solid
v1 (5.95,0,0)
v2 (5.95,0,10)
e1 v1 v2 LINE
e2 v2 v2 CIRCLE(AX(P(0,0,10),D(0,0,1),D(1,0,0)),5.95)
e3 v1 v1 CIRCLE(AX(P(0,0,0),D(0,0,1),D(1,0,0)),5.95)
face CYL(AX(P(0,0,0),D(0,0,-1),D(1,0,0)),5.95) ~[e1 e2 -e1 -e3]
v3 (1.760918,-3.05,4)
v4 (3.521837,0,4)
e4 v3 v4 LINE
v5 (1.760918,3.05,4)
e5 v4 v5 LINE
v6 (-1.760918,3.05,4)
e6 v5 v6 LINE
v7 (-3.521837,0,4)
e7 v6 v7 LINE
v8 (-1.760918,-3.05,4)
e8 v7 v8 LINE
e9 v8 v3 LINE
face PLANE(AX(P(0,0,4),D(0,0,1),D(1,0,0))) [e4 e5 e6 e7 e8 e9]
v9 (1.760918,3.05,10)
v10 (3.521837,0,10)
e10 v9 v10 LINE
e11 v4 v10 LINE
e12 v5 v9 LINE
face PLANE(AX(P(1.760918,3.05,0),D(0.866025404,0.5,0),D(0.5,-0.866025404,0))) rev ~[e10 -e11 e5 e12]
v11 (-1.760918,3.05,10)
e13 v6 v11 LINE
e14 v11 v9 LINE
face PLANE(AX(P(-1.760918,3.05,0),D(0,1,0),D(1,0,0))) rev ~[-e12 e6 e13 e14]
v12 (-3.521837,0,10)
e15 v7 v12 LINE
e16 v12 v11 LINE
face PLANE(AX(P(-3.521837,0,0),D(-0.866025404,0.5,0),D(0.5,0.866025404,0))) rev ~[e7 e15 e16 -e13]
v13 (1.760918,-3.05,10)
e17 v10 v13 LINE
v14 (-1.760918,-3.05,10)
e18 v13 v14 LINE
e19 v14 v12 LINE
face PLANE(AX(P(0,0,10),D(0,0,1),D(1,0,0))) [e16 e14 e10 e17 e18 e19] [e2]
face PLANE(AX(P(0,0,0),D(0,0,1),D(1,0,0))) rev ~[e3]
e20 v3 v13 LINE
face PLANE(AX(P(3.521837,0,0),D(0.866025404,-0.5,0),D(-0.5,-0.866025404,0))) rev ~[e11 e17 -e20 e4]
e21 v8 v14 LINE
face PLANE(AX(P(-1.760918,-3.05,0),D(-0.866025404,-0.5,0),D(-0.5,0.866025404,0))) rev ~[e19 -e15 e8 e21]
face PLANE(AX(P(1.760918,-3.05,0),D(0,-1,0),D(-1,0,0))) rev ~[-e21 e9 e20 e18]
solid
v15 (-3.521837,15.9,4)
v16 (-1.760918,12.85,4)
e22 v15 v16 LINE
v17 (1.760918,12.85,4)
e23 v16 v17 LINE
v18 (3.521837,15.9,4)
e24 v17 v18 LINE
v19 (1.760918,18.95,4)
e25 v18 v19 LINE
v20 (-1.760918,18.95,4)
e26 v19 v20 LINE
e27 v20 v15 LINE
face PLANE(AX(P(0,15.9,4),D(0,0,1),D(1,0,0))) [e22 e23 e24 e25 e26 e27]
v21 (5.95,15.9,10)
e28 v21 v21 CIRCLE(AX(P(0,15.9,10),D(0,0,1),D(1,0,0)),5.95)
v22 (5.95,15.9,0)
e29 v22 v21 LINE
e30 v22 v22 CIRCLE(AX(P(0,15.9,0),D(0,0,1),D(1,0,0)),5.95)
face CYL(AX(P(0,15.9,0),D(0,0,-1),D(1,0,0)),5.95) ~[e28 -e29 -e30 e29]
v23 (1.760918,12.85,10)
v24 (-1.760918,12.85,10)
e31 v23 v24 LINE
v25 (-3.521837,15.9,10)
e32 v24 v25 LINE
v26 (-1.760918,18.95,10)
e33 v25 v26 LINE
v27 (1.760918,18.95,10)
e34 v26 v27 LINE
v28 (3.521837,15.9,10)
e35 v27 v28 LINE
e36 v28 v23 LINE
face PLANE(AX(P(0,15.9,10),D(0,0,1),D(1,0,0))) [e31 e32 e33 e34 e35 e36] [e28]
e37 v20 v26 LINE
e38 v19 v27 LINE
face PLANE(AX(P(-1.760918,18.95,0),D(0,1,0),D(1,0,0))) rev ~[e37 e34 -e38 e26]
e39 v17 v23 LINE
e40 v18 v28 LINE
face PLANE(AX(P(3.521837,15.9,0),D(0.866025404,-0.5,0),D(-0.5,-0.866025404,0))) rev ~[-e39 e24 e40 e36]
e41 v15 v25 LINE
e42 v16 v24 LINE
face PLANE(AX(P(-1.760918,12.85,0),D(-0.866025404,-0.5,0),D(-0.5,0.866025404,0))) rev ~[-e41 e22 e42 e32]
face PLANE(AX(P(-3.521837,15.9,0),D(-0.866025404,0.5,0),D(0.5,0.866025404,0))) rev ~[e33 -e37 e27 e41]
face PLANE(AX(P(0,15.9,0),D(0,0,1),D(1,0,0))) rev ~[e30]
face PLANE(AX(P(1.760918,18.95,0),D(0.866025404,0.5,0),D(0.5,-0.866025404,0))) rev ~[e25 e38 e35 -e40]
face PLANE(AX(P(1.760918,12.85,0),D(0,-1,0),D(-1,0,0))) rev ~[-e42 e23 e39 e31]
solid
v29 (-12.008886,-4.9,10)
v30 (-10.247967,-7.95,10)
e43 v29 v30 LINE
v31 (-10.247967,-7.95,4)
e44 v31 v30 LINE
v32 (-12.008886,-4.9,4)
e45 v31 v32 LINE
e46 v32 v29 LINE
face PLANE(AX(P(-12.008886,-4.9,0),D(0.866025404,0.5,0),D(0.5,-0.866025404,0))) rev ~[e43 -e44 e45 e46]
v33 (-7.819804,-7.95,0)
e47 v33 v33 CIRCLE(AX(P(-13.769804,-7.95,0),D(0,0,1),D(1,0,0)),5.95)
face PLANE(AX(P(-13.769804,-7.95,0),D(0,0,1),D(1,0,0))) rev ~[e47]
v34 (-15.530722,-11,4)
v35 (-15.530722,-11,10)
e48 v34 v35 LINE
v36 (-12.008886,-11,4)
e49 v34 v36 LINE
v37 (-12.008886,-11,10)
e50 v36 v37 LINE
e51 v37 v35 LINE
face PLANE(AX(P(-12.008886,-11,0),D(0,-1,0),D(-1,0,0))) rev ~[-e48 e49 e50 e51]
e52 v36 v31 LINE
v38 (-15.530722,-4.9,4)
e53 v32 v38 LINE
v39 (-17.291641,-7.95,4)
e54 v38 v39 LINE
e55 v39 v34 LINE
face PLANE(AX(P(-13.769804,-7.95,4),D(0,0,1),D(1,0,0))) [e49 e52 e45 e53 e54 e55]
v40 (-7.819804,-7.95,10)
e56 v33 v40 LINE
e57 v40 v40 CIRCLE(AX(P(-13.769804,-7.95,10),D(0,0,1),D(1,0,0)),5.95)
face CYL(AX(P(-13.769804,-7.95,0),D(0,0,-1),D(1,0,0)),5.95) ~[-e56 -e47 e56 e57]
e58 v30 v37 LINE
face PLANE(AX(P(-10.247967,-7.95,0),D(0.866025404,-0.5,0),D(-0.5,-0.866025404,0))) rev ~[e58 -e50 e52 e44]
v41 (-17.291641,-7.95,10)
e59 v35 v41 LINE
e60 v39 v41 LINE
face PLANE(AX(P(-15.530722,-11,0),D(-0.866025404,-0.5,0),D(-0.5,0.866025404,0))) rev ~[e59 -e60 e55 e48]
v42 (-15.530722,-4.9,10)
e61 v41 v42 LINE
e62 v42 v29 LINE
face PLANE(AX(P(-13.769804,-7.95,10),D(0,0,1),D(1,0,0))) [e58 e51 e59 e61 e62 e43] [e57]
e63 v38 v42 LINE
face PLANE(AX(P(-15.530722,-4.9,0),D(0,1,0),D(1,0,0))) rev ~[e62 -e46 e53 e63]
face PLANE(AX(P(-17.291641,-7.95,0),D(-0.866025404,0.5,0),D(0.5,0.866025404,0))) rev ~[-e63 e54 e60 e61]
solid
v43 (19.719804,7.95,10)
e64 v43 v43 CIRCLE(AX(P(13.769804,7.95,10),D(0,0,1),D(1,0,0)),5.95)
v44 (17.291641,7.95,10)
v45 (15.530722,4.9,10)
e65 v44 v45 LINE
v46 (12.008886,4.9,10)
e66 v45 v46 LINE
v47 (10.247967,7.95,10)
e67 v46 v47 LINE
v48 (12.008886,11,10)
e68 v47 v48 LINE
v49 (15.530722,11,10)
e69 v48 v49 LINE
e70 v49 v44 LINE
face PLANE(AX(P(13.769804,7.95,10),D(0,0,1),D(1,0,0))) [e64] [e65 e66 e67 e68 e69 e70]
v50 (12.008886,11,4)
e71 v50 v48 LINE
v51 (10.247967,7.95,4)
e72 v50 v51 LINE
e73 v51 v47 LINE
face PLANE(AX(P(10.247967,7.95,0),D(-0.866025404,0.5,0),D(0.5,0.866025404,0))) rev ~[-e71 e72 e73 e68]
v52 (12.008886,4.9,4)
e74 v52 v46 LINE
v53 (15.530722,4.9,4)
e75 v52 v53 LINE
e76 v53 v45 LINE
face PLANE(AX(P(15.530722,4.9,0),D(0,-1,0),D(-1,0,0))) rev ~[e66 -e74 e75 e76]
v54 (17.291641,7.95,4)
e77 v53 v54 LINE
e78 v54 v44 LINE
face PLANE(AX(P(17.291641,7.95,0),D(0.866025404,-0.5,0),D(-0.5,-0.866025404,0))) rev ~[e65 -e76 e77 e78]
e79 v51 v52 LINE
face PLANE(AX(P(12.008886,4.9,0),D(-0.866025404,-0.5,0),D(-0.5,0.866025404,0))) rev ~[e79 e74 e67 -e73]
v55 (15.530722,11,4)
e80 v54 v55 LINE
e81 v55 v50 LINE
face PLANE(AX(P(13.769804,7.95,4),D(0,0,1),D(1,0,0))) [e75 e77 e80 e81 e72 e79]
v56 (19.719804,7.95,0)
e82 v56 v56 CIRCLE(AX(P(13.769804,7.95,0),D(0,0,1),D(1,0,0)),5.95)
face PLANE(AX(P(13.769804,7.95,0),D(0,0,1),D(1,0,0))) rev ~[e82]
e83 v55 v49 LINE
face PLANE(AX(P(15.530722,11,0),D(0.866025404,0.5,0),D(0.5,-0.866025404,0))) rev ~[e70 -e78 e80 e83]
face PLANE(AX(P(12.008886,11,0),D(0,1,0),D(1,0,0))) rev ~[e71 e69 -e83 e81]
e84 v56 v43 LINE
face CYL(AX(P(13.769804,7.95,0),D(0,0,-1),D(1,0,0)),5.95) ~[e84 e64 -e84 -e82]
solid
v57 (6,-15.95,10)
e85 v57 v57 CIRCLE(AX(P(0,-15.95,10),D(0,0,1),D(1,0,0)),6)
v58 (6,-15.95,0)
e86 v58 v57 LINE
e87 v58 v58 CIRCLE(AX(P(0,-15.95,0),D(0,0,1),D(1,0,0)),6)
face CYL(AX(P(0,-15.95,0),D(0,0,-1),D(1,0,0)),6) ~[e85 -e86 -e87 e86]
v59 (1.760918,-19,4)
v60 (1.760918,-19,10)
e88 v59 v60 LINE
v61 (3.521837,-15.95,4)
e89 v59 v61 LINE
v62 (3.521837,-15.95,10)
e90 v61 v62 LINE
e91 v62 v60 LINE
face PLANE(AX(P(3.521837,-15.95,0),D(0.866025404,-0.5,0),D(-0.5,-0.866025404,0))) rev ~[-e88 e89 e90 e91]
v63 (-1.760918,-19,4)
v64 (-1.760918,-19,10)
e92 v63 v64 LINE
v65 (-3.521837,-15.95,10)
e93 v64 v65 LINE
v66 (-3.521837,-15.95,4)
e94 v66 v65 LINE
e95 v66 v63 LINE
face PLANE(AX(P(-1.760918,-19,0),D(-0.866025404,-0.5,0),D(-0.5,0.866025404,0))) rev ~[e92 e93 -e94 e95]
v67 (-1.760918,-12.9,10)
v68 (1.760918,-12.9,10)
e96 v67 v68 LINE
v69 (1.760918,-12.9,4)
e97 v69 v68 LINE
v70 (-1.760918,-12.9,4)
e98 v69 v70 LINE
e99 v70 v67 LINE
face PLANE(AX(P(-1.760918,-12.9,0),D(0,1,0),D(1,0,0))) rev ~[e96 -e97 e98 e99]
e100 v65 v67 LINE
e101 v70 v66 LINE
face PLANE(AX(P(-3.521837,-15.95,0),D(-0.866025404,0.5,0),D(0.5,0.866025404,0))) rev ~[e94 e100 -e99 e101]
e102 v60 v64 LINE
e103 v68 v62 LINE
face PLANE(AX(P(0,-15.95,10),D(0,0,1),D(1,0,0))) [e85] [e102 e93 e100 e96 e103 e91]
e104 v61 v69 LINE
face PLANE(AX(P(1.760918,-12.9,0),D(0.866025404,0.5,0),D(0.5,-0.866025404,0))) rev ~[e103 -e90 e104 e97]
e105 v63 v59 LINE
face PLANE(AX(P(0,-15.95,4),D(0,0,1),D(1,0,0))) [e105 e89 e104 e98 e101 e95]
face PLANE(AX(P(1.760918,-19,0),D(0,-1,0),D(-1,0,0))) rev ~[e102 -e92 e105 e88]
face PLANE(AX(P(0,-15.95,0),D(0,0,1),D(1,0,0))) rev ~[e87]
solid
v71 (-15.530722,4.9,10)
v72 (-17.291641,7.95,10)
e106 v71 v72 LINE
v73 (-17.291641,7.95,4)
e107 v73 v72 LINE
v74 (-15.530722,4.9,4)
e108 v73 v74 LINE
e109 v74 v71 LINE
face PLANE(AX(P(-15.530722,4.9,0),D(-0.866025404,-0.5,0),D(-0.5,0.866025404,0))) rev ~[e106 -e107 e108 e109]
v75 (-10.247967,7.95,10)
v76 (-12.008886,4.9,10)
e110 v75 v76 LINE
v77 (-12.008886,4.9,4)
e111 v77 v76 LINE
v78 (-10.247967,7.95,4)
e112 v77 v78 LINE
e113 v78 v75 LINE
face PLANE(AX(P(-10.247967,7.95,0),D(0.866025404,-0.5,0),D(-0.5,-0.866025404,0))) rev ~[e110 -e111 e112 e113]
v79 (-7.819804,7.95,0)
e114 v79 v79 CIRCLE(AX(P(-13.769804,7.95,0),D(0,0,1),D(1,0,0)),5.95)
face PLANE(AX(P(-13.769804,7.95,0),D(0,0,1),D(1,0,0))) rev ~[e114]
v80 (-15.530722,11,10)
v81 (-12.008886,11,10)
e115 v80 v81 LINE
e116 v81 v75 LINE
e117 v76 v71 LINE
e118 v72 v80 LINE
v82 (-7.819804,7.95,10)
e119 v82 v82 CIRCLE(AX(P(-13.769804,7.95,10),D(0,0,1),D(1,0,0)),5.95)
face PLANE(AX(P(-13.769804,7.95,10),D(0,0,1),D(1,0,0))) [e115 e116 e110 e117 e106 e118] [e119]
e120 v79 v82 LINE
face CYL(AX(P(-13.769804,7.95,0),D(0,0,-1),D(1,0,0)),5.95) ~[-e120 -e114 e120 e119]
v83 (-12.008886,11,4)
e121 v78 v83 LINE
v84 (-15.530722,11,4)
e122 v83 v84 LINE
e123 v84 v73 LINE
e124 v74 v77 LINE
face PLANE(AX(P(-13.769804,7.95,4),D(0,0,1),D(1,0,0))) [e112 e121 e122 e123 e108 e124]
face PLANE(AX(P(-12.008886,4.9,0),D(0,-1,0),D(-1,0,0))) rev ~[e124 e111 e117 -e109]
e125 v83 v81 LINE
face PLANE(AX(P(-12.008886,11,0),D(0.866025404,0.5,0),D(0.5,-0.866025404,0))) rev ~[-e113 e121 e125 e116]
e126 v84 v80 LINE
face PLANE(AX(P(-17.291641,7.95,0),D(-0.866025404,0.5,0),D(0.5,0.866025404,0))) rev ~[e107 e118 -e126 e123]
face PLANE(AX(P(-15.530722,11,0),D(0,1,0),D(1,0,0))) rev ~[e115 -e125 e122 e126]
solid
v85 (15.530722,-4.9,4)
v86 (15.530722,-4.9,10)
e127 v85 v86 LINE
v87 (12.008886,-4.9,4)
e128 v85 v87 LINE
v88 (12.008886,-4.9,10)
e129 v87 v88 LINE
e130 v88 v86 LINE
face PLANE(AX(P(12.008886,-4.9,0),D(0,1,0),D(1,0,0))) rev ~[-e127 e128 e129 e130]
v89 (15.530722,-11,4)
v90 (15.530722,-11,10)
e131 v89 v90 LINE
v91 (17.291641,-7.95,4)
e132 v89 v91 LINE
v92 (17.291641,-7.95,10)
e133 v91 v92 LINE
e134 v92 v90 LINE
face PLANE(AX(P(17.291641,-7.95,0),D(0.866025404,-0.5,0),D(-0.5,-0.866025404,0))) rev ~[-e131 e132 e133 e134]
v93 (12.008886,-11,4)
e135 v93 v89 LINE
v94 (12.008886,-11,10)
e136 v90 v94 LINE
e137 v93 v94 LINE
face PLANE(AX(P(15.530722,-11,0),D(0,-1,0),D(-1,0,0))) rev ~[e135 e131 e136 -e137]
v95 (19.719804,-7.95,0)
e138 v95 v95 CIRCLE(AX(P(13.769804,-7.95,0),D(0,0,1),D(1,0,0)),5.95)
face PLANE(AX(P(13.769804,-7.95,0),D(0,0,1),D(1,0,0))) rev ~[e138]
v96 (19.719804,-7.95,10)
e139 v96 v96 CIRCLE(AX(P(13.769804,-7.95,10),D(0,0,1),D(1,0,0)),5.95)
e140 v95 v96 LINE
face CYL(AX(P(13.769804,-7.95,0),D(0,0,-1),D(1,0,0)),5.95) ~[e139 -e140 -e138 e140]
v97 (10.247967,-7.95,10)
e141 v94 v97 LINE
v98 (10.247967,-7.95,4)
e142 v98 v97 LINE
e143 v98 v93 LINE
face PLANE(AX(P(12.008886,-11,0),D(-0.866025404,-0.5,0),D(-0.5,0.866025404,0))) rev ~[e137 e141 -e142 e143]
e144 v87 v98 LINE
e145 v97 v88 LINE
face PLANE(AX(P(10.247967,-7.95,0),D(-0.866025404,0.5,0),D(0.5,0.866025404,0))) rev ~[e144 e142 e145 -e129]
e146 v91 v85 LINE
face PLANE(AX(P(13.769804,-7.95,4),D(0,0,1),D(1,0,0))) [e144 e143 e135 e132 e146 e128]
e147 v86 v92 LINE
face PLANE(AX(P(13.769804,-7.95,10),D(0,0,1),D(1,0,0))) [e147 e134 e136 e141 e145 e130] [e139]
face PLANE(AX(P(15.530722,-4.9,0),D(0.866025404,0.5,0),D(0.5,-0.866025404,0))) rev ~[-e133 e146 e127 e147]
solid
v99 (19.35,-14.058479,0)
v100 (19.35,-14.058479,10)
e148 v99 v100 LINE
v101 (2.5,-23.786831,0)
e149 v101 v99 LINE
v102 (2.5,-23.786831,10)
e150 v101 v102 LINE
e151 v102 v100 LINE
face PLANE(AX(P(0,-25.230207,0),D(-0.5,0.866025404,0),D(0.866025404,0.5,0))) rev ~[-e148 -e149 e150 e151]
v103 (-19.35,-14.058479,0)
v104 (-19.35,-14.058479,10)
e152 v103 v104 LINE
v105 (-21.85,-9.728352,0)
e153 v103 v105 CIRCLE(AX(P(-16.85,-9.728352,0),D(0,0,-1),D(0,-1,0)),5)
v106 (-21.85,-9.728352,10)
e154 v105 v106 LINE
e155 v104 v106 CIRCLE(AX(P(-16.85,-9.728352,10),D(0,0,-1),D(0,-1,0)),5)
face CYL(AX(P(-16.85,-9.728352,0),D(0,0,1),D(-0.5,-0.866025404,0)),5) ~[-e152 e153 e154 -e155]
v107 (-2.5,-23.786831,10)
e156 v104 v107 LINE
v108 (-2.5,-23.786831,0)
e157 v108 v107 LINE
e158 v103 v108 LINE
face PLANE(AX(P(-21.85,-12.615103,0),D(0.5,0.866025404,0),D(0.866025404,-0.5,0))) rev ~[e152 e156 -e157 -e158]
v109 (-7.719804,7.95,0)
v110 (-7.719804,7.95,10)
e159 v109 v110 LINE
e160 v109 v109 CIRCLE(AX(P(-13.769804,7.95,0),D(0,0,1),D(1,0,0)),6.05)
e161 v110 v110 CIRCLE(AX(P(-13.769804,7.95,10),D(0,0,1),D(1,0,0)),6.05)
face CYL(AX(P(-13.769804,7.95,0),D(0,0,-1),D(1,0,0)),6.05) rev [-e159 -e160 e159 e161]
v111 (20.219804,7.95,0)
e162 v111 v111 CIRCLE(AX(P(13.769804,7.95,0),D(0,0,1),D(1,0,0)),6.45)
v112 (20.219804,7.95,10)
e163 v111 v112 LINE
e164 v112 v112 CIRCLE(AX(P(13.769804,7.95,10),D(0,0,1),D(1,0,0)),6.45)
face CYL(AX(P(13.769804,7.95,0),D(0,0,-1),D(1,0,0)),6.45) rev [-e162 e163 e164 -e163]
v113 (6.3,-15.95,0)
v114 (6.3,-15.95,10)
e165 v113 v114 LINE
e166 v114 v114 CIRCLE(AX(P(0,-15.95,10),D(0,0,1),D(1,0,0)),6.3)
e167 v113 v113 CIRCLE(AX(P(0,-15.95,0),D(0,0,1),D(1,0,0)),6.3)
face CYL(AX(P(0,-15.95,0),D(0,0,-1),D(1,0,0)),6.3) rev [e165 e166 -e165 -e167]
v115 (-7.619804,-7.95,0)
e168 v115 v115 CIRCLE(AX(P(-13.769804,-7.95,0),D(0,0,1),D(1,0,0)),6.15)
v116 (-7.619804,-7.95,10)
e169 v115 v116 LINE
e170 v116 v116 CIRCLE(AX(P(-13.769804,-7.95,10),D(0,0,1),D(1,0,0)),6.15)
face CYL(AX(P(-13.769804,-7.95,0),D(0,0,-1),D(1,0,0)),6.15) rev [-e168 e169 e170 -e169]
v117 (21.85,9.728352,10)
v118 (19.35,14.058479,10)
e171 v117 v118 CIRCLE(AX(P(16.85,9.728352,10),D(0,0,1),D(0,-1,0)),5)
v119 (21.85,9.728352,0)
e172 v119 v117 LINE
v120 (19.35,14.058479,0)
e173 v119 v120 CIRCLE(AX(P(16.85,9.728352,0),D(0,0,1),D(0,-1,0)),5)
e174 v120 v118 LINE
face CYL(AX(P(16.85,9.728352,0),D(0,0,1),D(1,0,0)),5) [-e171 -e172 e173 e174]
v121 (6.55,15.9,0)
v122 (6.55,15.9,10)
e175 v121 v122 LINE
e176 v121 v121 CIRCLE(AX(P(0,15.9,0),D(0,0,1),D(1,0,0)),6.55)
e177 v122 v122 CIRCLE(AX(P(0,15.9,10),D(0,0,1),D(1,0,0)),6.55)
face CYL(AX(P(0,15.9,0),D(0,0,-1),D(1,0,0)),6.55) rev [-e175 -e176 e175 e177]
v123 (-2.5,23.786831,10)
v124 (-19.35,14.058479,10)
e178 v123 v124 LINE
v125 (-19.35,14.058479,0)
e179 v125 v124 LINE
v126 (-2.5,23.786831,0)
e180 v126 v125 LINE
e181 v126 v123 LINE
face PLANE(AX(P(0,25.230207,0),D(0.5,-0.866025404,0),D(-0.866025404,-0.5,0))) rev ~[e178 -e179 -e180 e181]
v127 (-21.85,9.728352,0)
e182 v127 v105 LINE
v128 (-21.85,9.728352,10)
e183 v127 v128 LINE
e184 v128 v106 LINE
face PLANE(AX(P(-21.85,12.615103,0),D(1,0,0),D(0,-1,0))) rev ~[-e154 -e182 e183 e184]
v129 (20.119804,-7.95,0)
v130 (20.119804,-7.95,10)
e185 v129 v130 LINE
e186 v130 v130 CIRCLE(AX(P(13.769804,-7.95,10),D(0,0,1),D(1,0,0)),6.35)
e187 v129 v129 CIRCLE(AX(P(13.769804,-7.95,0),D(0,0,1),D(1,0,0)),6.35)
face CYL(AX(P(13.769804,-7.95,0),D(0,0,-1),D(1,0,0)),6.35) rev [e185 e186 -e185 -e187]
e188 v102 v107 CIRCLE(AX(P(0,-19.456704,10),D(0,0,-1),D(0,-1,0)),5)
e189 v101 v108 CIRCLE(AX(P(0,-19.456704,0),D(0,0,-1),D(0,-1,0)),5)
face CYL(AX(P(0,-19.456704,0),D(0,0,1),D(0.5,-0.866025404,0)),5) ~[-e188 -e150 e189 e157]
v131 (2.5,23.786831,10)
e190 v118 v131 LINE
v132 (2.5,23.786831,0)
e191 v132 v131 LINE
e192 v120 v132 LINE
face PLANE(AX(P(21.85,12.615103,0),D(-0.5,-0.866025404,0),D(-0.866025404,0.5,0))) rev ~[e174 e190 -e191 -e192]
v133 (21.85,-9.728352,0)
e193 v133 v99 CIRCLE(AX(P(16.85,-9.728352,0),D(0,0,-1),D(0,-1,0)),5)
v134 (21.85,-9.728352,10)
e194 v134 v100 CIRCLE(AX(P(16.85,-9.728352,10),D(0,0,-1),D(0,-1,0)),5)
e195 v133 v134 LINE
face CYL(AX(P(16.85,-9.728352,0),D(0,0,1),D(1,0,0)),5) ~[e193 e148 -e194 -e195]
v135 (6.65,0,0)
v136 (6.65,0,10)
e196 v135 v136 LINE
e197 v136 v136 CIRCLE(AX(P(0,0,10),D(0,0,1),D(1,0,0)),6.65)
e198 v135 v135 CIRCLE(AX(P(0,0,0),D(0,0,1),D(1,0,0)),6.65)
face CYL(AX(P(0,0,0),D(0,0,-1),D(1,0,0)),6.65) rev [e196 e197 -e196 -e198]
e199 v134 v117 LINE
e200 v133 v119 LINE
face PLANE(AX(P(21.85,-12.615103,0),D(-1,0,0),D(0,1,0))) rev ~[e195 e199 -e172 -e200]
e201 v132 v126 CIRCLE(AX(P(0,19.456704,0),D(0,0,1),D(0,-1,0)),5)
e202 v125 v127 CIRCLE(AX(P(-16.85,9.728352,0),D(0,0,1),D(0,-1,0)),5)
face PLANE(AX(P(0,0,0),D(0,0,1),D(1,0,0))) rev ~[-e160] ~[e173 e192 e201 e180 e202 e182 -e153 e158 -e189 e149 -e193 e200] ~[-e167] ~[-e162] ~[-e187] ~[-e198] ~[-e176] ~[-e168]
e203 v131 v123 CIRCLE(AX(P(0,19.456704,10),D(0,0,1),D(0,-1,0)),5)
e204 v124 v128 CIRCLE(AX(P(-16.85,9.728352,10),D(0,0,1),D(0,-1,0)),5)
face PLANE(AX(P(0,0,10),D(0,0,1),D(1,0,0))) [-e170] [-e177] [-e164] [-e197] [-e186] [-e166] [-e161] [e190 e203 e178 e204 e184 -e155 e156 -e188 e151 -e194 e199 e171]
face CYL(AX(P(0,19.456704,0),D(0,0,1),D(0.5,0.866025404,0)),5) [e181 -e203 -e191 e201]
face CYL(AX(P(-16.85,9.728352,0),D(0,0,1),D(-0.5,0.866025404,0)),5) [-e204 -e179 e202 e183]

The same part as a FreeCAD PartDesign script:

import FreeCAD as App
import Part
import Sketcher
Q = App.Units.Quantity


def edges_at(feature, points):
    """Names of the edges that pass closest to the given points."""
    edges = feature.Shape.Edges
    near = lambda p: min(range(len(edges)), key=lambda i: edges[i].distToShape(Part.Vertex(*p))[0])
    return sorted({f"Edge{near(p) + 1}" for p in points})

doc = App.newDocument("Part")
body = doc.addObject("PartDesign::Body", "Body")

sketch1 = body.newObject("Sketcher::SketchObject", "Sketch")
sketch1.AttachmentSupport = (doc.getObject("XY_Plane"), [""])
sketch1.MapMode = "FlatFace"
sketch1.addGeometry([
    Part.LineSegment(App.Vector(21.85, -12.615103, 0), App.Vector(21.85, 12.615103, 0)),
    Part.LineSegment(App.Vector(21.85, 12.615103, 0), App.Vector(0, 25.230207, 0)),
    Part.LineSegment(App.Vector(0, 25.230207, 0), App.Vector(-21.85, 12.615103, 0)),
    Part.LineSegment(App.Vector(-21.85, 12.615103, 0), App.Vector(-21.85, -12.615103, 0)),
    Part.LineSegment(App.Vector(-21.85, -12.615103, 0), App.Vector(0, -25.230207, 0)),
    Part.LineSegment(App.Vector(0, -25.230207, 0), App.Vector(21.85, -12.615103, 0)),
    Part.Circle(App.Vector(0, -15.95, 0), App.Vector(0, 0, 1), 6.3),
    Part.Circle(App.Vector(-13.769804, -7.95, 0), App.Vector(0, 0, 1), 6.15),
    Part.Circle(App.Vector(0, 0, 0), App.Vector(0, 0, 1), 6.65),
    Part.Circle(App.Vector(13.769804, -7.95, 0), App.Vector(0, 0, 1), 6.35),
    Part.Circle(App.Vector(-13.769804, 7.95, 0), App.Vector(0, 0, 1), 6.05),
    Part.Circle(App.Vector(0, 15.9, 0), App.Vector(0, 0, 1), 6.55),
    Part.Circle(App.Vector(13.769804, 7.95, 0), App.Vector(0, 0, 1), 6.45),
], False)
sketch1.addConstraint([
    Sketcher.Constraint("Coincident", 0, 2, 1, 1),
    Sketcher.Constraint("Coincident", 1, 2, 2, 1),
    Sketcher.Constraint("Coincident", 2, 2, 3, 1),
    Sketcher.Constraint("Coincident", 3, 2, 4, 1),
    Sketcher.Constraint("Coincident", 4, 2, 5, 1),
    Sketcher.Constraint("Coincident", 5, 2, 0, 1),
    Sketcher.Constraint("Vertical", 0),
    Sketcher.Constraint("Vertical", 3),
    Sketcher.Constraint("Coincident", 8, 3, -1, 1),
    Sketcher.Constraint("Symmetric", 9, 3, 10, 3, -1, 1),
    Sketcher.Constraint("Symmetric", 7, 3, 12, 3, -1, 1),
    Sketcher.Constraint("Symmetric", 0, 2, 3, 2, -1, 1),
    Sketcher.Constraint("Symmetric", 1, 2, 4, 2, -1, 1),
    Sketcher.Constraint("Symmetric", 7, 3, 9, 3, -2),
    Sketcher.Constraint("PointOnObject", 6, 3, -2),
    Sketcher.Constraint("PointOnObject", 11, 3, -2),
    Sketcher.Constraint("PointOnObject", 1, 2, -2),
    Sketcher.Constraint("Parallel", 2, 5),
    Sketcher.Constraint("Horizontal", 0, 2, 2, 2),
    Sketcher.Constraint("Diameter", 6, Q("12.6 mm")),
    Sketcher.Constraint("Diameter", 7, Q("12.3 mm")),
    Sketcher.Constraint("Diameter", 8, Q("13.3 mm")),
    Sketcher.Constraint("Diameter", 9, Q("12.7 mm")),
    Sketcher.Constraint("Diameter", 10, Q("12.1 mm")),
    Sketcher.Constraint("Diameter", 11, Q("13.1 mm")),
    Sketcher.Constraint("Diameter", 12, Q("12.9 mm")),
    Sketcher.Constraint("Angle", 1, Q("150 deg")),
    Sketcher.Constraint("DistanceY", 6, 3, 7, 3, Q("8 mm")),
    Sketcher.Constraint("DistanceY", -1, 1, 11, 3, Q("15.9 mm")),
    Sketcher.Constraint("DistanceY", 7, 3, 10, 3, Q("15.9 mm")),
    Sketcher.Constraint("DistanceX", -1, 1, 0, 2, Q("21.85 mm")),
    Sketcher.Constraint("DistanceY", 0, 1, 0, 2, Q("25.230207 mm")),
    Sketcher.Constraint("DistanceX", 7, 3, -1, 1, Q("13.769804 mm")),
])
pad1 = body.newObject("PartDesign::Pad", "Pad")
pad1.Profile = sketch1
pad1.Length = 10
doc.recompute()

fillet = body.newObject("PartDesign::Fillet", "Fillet")
fillet.Base = (pad1, edges_at(pad1, [
    (-21.85, 12.615, 5),
    (-21.85, -12.615, 5),
    (0, -25.23, 5),
    (0, 25.23, 5),
    (21.85, -12.615, 5),
    (21.85, 12.615, 5),
]))
fillet.Radius = 5
body2 = doc.addObject("PartDesign::Body", "Body001")

sketch2 = body2.newObject("Sketcher::SketchObject", "Sketch001")
sketch2.AttachmentSupport = (doc.getObject("XY_Plane001"), [""])
sketch2.MapMode = "FlatFace"
sketch2.addGeometry([
    Part.Circle(App.Vector(-13.769804, 7.95, 0), App.Vector(0, 0, 1), 5.95),
    Part.LineSegment(App.Vector(-17.291641, 7.95, 0), App.Vector(-15.530722, 11, 0)),
    Part.LineSegment(App.Vector(-15.530722, 11, 0), App.Vector(-12.008886, 11, 0)),
    Part.LineSegment(App.Vector(-12.008886, 11, 0), App.Vector(-10.247967, 7.95, 0)),
    Part.LineSegment(App.Vector(-10.247967, 7.95, 0), App.Vector(-12.008886, 4.9, 0)),
    Part.LineSegment(App.Vector(-12.008886, 4.9, 0), App.Vector(-15.530722, 4.9, 0)),
    Part.LineSegment(App.Vector(-15.530722, 4.9, 0), App.Vector(-17.291641, 7.95, 0)),
], False)
sketch2.addConstraint([
    Sketcher.Constraint("Coincident", 1, 2, 2, 1),
    Sketcher.Constraint("Coincident", 2, 2, 3, 1),
    Sketcher.Constraint("Coincident", 3, 2, 4, 1),
    Sketcher.Constraint("Coincident", 4, 2, 5, 1),
    Sketcher.Constraint("Coincident", 5, 2, 6, 1),
    Sketcher.Constraint("Coincident", 6, 2, 1, 1),
    Sketcher.Constraint("Horizontal", 2),
    Sketcher.Constraint("Horizontal", 5),
    Sketcher.Constraint("Parallel", 1, 4),
    Sketcher.Constraint("Parallel", 3, 6),
    Sketcher.Constraint("Horizontal", 0, 3, 3, 2),
    Sketcher.Constraint("Horizontal", 3, 2, 6, 2),
    Sketcher.Constraint("Vertical", 2, 2, 4, 2),
    Sketcher.Constraint("Vertical", 1, 2, 5, 2),
    Sketcher.Constraint("Diameter", 0, Q("11.9 mm")),
    Sketcher.Constraint("Angle", 1, Q("60 deg")),
    Sketcher.Constraint("DistanceY", -1, 1, 1, 2, Q("11 mm")),
    Sketcher.Constraint("DistanceY", -1, 1, 4, 2, Q("4.9 mm")),
    Sketcher.Constraint("DistanceX", 2, 1, 2, 2, Q("3.521837 mm")),
    Sketcher.Constraint("DistanceX", 6, 2, -1, 1, Q("17.291641 mm")),
    Sketcher.Constraint("DistanceX", 1, 2, 0, 3, Q("1.760918 mm")),
])
pad2 = body2.newObject("PartDesign::Pad", "Pad001")
pad2.Profile = sketch2
pad2.Length = 10

sketch3 = body2.newObject("Sketcher::SketchObject", "Sketch002")
sketch3.AttachmentSupport = (doc.getObject("XY_Plane001"), [""])
sketch3.MapMode = "FlatFace"
sketch3.addGeometry([
    Part.LineSegment(App.Vector(-10.247967, 7.95, 0), App.Vector(-12.008886, 11, 0)),
    Part.LineSegment(App.Vector(-12.008886, 11, 0), App.Vector(-15.530722, 11, 0)),
    Part.LineSegment(App.Vector(-15.530722, 11, 0), App.Vector(-17.291641, 7.95, 0)),
    Part.LineSegment(App.Vector(-17.291641, 7.95, 0), App.Vector(-15.530722, 4.9, 0)),
    Part.LineSegment(App.Vector(-15.530722, 4.9, 0), App.Vector(-12.008886, 4.9, 0)),
    Part.LineSegment(App.Vector(-12.008886, 4.9, 0), App.Vector(-10.247967, 7.95, 0)),
], False)
sketch3.addConstraint([
    Sketcher.Constraint("Coincident", 0, 2, 1, 1),
    Sketcher.Constraint("Coincident", 1, 2, 2, 1),
    Sketcher.Constraint("Coincident", 2, 2, 3, 1),
    Sketcher.Constraint("Coincident", 3, 2, 4, 1),
    Sketcher.Constraint("Coincident", 4, 2, 5, 1),
    Sketcher.Constraint("Coincident", 5, 2, 0, 1),
    Sketcher.Constraint("Horizontal", 1),
    Sketcher.Constraint("Horizontal", 4),
    Sketcher.Constraint("Parallel", 0, 3),
    Sketcher.Constraint("Parallel", 2, 5),
    Sketcher.Constraint("Horizontal", 2, 2, 5, 2),
    Sketcher.Constraint("Vertical", 1, 2, 3, 2),
    Sketcher.Constraint("Vertical", 0, 2, 4, 2),
    Sketcher.Constraint("Angle", 0, Q("120 deg")),
    Sketcher.Constraint("DistanceY", -1, 1, 0, 2, Q("11 mm")),
    Sketcher.Constraint("DistanceY", -1, 1, 3, 2, Q("4.9 mm")),
    Sketcher.Constraint("DistanceX", 1, 2, 1, 1, Q("3.521837 mm")),
    Sketcher.Constraint("DistanceX", 2, 2, -1, 1, Q("17.291641 mm")),
])
pad3 = body2.newObject("PartDesign::Pad", "Pad002")
pad3.Profile = sketch3
pad3.Length = 4
body3 = doc.addObject("PartDesign::Body", "Body002")

sketch4 = body3.newObject("Sketcher::SketchObject", "Sketch003")
sketch4.AttachmentSupport = (doc.getObject("XY_Plane002"), [""])
sketch4.MapMode = "FlatFace"
sketch4.addGeometry([
    Part.Circle(App.Vector(-13.769804, -7.95, 0), App.Vector(0, 0, 1), 5.95),
    Part.LineSegment(App.Vector(-17.291641, -7.95, 0), App.Vector(-15.530722, -4.9, 0)),
    Part.LineSegment(App.Vector(-15.530722, -4.9, 0), App.Vector(-12.008886, -4.9, 0)),
    Part.LineSegment(App.Vector(-12.008886, -4.9, 0), App.Vector(-10.247967, -7.95, 0)),
    Part.LineSegment(App.Vector(-10.247967, -7.95, 0), App.Vector(-12.008886, -11, 0)),
    Part.LineSegment(App.Vector(-12.008886, -11, 0), App.Vector(-15.530722, -11, 0)),
    Part.LineSegment(App.Vector(-15.530722, -11, 0), App.Vector(-17.291641, -7.95, 0)),
], False)
sketch4.addConstraint([
    Sketcher.Constraint("Coincident", 1, 2, 2, 1),
    Sketcher.Constraint("Coincident", 2, 2, 3, 1),
    Sketcher.Constraint("Coincident", 3, 2, 4, 1),
    Sketcher.Constraint("Coincident", 4, 2, 5, 1),
    Sketcher.Constraint("Coincident", 5, 2, 6, 1),
    Sketcher.Constraint("Coincident", 6, 2, 1, 1),
    Sketcher.Constraint("Horizontal", 2),
    Sketcher.Constraint("Horizontal", 5),
    Sketcher.Constraint("Parallel", 1, 4),
    Sketcher.Constraint("Parallel", 3, 6),
    Sketcher.Constraint("Horizontal", 0, 3, 3, 2),
    Sketcher.Constraint("Horizontal", 3, 2, 6, 2),
    Sketcher.Constraint("Vertical", 2, 2, 4, 2),
    Sketcher.Constraint("Vertical", 1, 2, 5, 2),
    Sketcher.Constraint("Diameter", 0, Q("11.9 mm")),
    Sketcher.Constraint("Angle", 1, Q("60 deg")),
    Sketcher.Constraint("DistanceY", 4, 2, -1, 1, Q("11 mm")),
    Sketcher.Constraint("DistanceY", 1, 2, -1, 1, Q("4.9 mm")),
    Sketcher.Constraint("DistanceX", 2, 1, 2, 2, Q("3.521837 mm")),
    Sketcher.Constraint("DistanceX", 6, 2, -1, 1, Q("17.291641 mm")),
    Sketcher.Constraint("DistanceX", 1, 2, 0, 3, Q("1.760918 mm")),
])
pad4 = body3.newObject("PartDesign::Pad", "Pad003")
pad4.Profile = sketch4
pad4.Length = 10

sketch5 = body3.newObject("Sketcher::SketchObject", "Sketch004")
sketch5.AttachmentSupport = (doc.getObject("XY_Plane002"), [""])
sketch5.MapMode = "FlatFace"
sketch5.addGeometry([
    Part.LineSegment(App.Vector(-10.247967, -7.95, 0), App.Vector(-12.008886, -4.9, 0)),
    Part.LineSegment(App.Vector(-12.008886, -4.9, 0), App.Vector(-15.530722, -4.9, 0)),
    Part.LineSegment(App.Vector(-15.530722, -4.9, 0), App.Vector(-17.291641, -7.95, 0)),
    Part.LineSegment(App.Vector(-17.291641, -7.95, 0), App.Vector(-15.530722, -11, 0)),
    Part.LineSegment(App.Vector(-15.530722, -11, 0), App.Vector(-12.008886, -11, 0)),
    Part.LineSegment(App.Vector(-12.008886, -11, 0), App.Vector(-10.247967, -7.95, 0)),
], False)
sketch5.addConstraint([
    Sketcher.Constraint("Coincident", 0, 2, 1, 1),
    Sketcher.Constraint("Coincident", 1, 2, 2, 1),
    Sketcher.Constraint("Coincident", 2, 2, 3, 1),
    Sketcher.Constraint("Coincident", 3, 2, 4, 1),
    Sketcher.Constraint("Coincident", 4, 2, 5, 1),
    Sketcher.Constraint("Coincident", 5, 2, 0, 1),
    Sketcher.Constraint("Horizontal", 1),
    Sketcher.Constraint("Horizontal", 4),
    Sketcher.Constraint("Parallel", 0, 3),
    Sketcher.Constraint("Parallel", 2, 5),
    Sketcher.Constraint("Horizontal", 2, 2, 5, 2),
    Sketcher.Constraint("Vertical", 1, 2, 3, 2),
    Sketcher.Constraint("Vertical", 0, 2, 4, 2),
    Sketcher.Constraint("Angle", 0, Q("120 deg")),
    Sketcher.Constraint("DistanceY", 3, 2, -1, 1, Q("11 mm")),
    Sketcher.Constraint("DistanceY", 0, 2, -1, 1, Q("4.9 mm")),
    Sketcher.Constraint("DistanceX", 1, 2, 1, 1, Q("3.521837 mm")),
    Sketcher.Constraint("DistanceX", 2, 2, -1, 1, Q("17.291641 mm")),
])
pad5 = body3.newObject("PartDesign::Pad", "Pad004")
pad5.Profile = sketch5
pad5.Length = 4
body4 = doc.addObject("PartDesign::Body", "Body003")

sketch6 = body4.newObject("Sketcher::SketchObject", "Sketch005")
sketch6.AttachmentSupport = (doc.getObject("XY_Plane003"), [""])
sketch6.MapMode = "FlatFace"
sketch6.addGeometry([
    Part.Circle(App.Vector(0, -15.95, 0), App.Vector(0, 0, 1), 6),
    Part.LineSegment(App.Vector(-3.521837, -15.95, 0), App.Vector(-1.760918, -12.9, 0)),
    Part.LineSegment(App.Vector(-1.760918, -12.9, 0), App.Vector(1.760918, -12.9, 0)),
    Part.LineSegment(App.Vector(1.760918, -12.9, 0), App.Vector(3.521837, -15.95, 0)),
    Part.LineSegment(App.Vector(3.521837, -15.95, 0), App.Vector(1.760918, -19, 0)),
    Part.LineSegment(App.Vector(1.760918, -19, 0), App.Vector(-1.760918, -19, 0)),
    Part.LineSegment(App.Vector(-1.760918, -19, 0), App.Vector(-3.521837, -15.95, 0)),
], False)
sketch6.addConstraint([
    Sketcher.Constraint("Coincident", 1, 2, 2, 1),
    Sketcher.Constraint("Coincident", 2, 2, 3, 1),
    Sketcher.Constraint("Coincident", 3, 2, 4, 1),
    Sketcher.Constraint("Coincident", 4, 2, 5, 1),
    Sketcher.Constraint("Coincident", 5, 2, 6, 1),
    Sketcher.Constraint("Coincident", 6, 2, 1, 1),
    Sketcher.Constraint("Horizontal", 2),
    Sketcher.Constraint("Horizontal", 5),
    Sketcher.Constraint("Symmetric", 3, 2, 6, 2, -2),
    Sketcher.Constraint("PointOnObject", 0, 3, -2),
    Sketcher.Constraint("Parallel", 1, 4),
    Sketcher.Constraint("Parallel", 3, 6),
    Sketcher.Constraint("Horizontal", 0, 3, 3, 2),
    Sketcher.Constraint("Vertical", 2, 2, 4, 2),
    Sketcher.Constraint("Vertical", 1, 2, 5, 2),
    Sketcher.Constraint("Diameter", 0, Q("12 mm")),
    Sketcher.Constraint("Angle", 1, Q("60 deg")),
    Sketcher.Constraint("DistanceY", 4, 2, -1, 1, Q("19 mm")),
    Sketcher.Constraint("DistanceY", 1, 2, -1, 1, Q("12.9 mm")),
    Sketcher.Constraint("DistanceX", 2, 1, 2, 2, Q("3.521837 mm")),
])
pad6 = body4.newObject("PartDesign::Pad", "Pad005")
pad6.Profile = sketch6
pad6.Length = 10

sketch7 = body4.newObject("Sketcher::SketchObject", "Sketch006")
sketch7.AttachmentSupport = (doc.getObject("XY_Plane003"), [""])
sketch7.MapMode = "FlatFace"
sketch7.addGeometry([
    Part.LineSegment(App.Vector(3.521837, -15.95, 0), App.Vector(1.760918, -12.9, 0)),
    Part.LineSegment(App.Vector(1.760918, -12.9, 0), App.Vector(-1.760918, -12.9, 0)),
    Part.LineSegment(App.Vector(-1.760918, -12.9, 0), App.Vector(-3.521837, -15.95, 0)),
    Part.LineSegment(App.Vector(-3.521837, -15.95, 0), App.Vector(-1.760918, -19, 0)),
    Part.LineSegment(App.Vector(-1.760918, -19, 0), App.Vector(1.760918, -19, 0)),
    Part.LineSegment(App.Vector(1.760918, -19, 0), App.Vector(3.521837, -15.95, 0)),
], False)
sketch7.addConstraint([
    Sketcher.Constraint("Coincident", 0, 2, 1, 1),
    Sketcher.Constraint("Coincident", 1, 2, 2, 1),
    Sketcher.Constraint("Coincident", 2, 2, 3, 1),
    Sketcher.Constraint("Coincident", 3, 2, 4, 1),
    Sketcher.Constraint("Coincident", 4, 2, 5, 1),
    Sketcher.Constraint("Coincident", 5, 2, 0, 1),
    Sketcher.Constraint("Horizontal", 1),
    Sketcher.Constraint("Horizontal", 4),
    Sketcher.Constraint("Symmetric", 2, 2, 5, 2, -2),
    Sketcher.Constraint("Parallel", 0, 3),
    Sketcher.Constraint("Parallel", 2, 5),
    Sketcher.Constraint("Vertical", 1, 2, 3, 2),
    Sketcher.Constraint("Vertical", 0, 2, 4, 2),
    Sketcher.Constraint("Angle", 0, Q("120 deg")),
    Sketcher.Constraint("DistanceY", 3, 2, -1, 1, Q("19 mm")),
    Sketcher.Constraint("DistanceY", 0, 2, -1, 1, Q("12.9 mm")),
    Sketcher.Constraint("DistanceX", 1, 2, 1, 1, Q("3.521837 mm")),
])
pad7 = body4.newObject("PartDesign::Pad", "Pad006")
pad7.Profile = sketch7
pad7.Length = 4
body5 = doc.addObject("PartDesign::Body", "Body004")

sketch8 = body5.newObject("Sketcher::SketchObject", "Sketch007")
sketch8.AttachmentSupport = (doc.getObject("XY_Plane004"), [""])
sketch8.MapMode = "FlatFace"
sketch8.addGeometry([
    Part.Circle(App.Vector(13.769804, -7.95, 0), App.Vector(0, 0, 1), 5.95),
    Part.LineSegment(App.Vector(10.247967, -7.95, 0), App.Vector(12.008886, -4.9, 0)),
    Part.LineSegment(App.Vector(12.008886, -4.9, 0), App.Vector(15.530722, -4.9, 0)),
    Part.LineSegment(App.Vector(15.530722, -4.9, 0), App.Vector(17.291641, -7.95, 0)),
    Part.LineSegment(App.Vector(17.291641, -7.95, 0), App.Vector(15.530722, -11, 0)),
    Part.LineSegment(App.Vector(15.530722, -11, 0), App.Vector(12.008886, -11, 0)),
    Part.LineSegment(App.Vector(12.008886, -11, 0), App.Vector(10.247967, -7.95, 0)),
], False)
sketch8.addConstraint([
    Sketcher.Constraint("Coincident", 1, 2, 2, 1),
    Sketcher.Constraint("Coincident", 2, 2, 3, 1),
    Sketcher.Constraint("Coincident", 3, 2, 4, 1),
    Sketcher.Constraint("Coincident", 4, 2, 5, 1),
    Sketcher.Constraint("Coincident", 5, 2, 6, 1),
    Sketcher.Constraint("Coincident", 6, 2, 1, 1),
    Sketcher.Constraint("Horizontal", 2),
    Sketcher.Constraint("Horizontal", 5),
    Sketcher.Constraint("Parallel", 1, 4),
    Sketcher.Constraint("Parallel", 3, 6),
    Sketcher.Constraint("Horizontal", 0, 3, 3, 2),
    Sketcher.Constraint("Horizontal", 3, 2, 6, 2),
    Sketcher.Constraint("Vertical", 2, 2, 4, 2),
    Sketcher.Constraint("Vertical", 1, 2, 5, 2),
    Sketcher.Constraint("Diameter", 0, Q("11.9 mm")),
    Sketcher.Constraint("Angle", 1, Q("60 deg")),
    Sketcher.Constraint("DistanceY", 4, 2, -1, 1, Q("11 mm")),
    Sketcher.Constraint("DistanceY", 1, 2, -1, 1, Q("4.9 mm")),
    Sketcher.Constraint("DistanceX", 2, 1, 2, 2, Q("3.521837 mm")),
    Sketcher.Constraint("DistanceX", -1, 1, 3, 2, Q("17.291641 mm")),
    Sketcher.Constraint("DistanceX", 1, 2, 0, 3, Q("1.760918 mm")),
])
pad8 = body5.newObject("PartDesign::Pad", "Pad007")
pad8.Profile = sketch8
pad8.Length = 10

sketch9 = body5.newObject("Sketcher::SketchObject", "Sketch008")
sketch9.AttachmentSupport = (doc.getObject("XY_Plane004"), [""])
sketch9.MapMode = "FlatFace"
sketch9.addGeometry([
    Part.LineSegment(App.Vector(17.291641, -7.95, 0), App.Vector(15.530722, -4.9, 0)),
    Part.LineSegment(App.Vector(15.530722, -4.9, 0), App.Vector(12.008886, -4.9, 0)),
    Part.LineSegment(App.Vector(12.008886, -4.9, 0), App.Vector(10.247967, -7.95, 0)),
    Part.LineSegment(App.Vector(10.247967, -7.95, 0), App.Vector(12.008886, -11, 0)),
    Part.LineSegment(App.Vector(12.008886, -11, 0), App.Vector(15.530722, -11, 0)),
    Part.LineSegment(App.Vector(15.530722, -11, 0), App.Vector(17.291641, -7.95, 0)),
], False)
sketch9.addConstraint([
    Sketcher.Constraint("Coincident", 0, 2, 1, 1),
    Sketcher.Constraint("Coincident", 1, 2, 2, 1),
    Sketcher.Constraint("Coincident", 2, 2, 3, 1),
    Sketcher.Constraint("Coincident", 3, 2, 4, 1),
    Sketcher.Constraint("Coincident", 4, 2, 5, 1),
    Sketcher.Constraint("Coincident", 5, 2, 0, 1),
    Sketcher.Constraint("Horizontal", 1),
    Sketcher.Constraint("Horizontal", 4),
    Sketcher.Constraint("Parallel", 0, 3),
    Sketcher.Constraint("Parallel", 2, 5),
    Sketcher.Constraint("Horizontal", 2, 2, 5, 2),
    Sketcher.Constraint("Vertical", 1, 2, 3, 2),
    Sketcher.Constraint("Vertical", 0, 2, 4, 2),
    Sketcher.Constraint("Angle", 0, Q("120 deg")),
    Sketcher.Constraint("DistanceY", 3, 2, -1, 1, Q("11 mm")),
    Sketcher.Constraint("DistanceY", 0, 2, -1, 1, Q("4.9 mm")),
    Sketcher.Constraint("DistanceX", 1, 2, 1, 1, Q("3.521837 mm")),
    Sketcher.Constraint("DistanceX", -1, 1, 5, 2, Q("17.291641 mm")),
])
pad9 = body5.newObject("PartDesign::Pad", "Pad008")
pad9.Profile = sketch9
pad9.Length = 4
body6 = doc.addObject("PartDesign::Body", "Body005")

sketch10 = body6.newObject("Sketcher::SketchObject", "Sketch009")
sketch10.AttachmentSupport = (doc.getObject("XY_Plane005"), [""])
sketch10.MapMode = "FlatFace"
sketch10.addGeometry([
    Part.Circle(App.Vector(13.769804, 7.95, 0), App.Vector(0, 0, 1), 5.95),
    Part.LineSegment(App.Vector(10.247967, 7.95, 0), App.Vector(12.008886, 11, 0)),
    Part.LineSegment(App.Vector(12.008886, 11, 0), App.Vector(15.530722, 11, 0)),
    Part.LineSegment(App.Vector(15.530722, 11, 0), App.Vector(17.291641, 7.95, 0)),
    Part.LineSegment(App.Vector(17.291641, 7.95, 0), App.Vector(15.530722, 4.9, 0)),
    Part.LineSegment(App.Vector(15.530722, 4.9, 0), App.Vector(12.008886, 4.9, 0)),
    Part.LineSegment(App.Vector(12.008886, 4.9, 0), App.Vector(10.247967, 7.95, 0)),
], False)
sketch10.addConstraint([
    Sketcher.Constraint("Coincident", 1, 2, 2, 1),
    Sketcher.Constraint("Coincident", 2, 2, 3, 1),
    Sketcher.Constraint("Coincident", 3, 2, 4, 1),
    Sketcher.Constraint("Coincident", 4, 2, 5, 1),
    Sketcher.Constraint("Coincident", 5, 2, 6, 1),
    Sketcher.Constraint("Coincident", 6, 2, 1, 1),
    Sketcher.Constraint("Horizontal", 2),
    Sketcher.Constraint("Horizontal", 5),
    Sketcher.Constraint("Parallel", 1, 4),
    Sketcher.Constraint("Parallel", 3, 6),
    Sketcher.Constraint("Horizontal", 0, 3, 3, 2),
    Sketcher.Constraint("Horizontal", 3, 2, 6, 2),
    Sketcher.Constraint("Vertical", 2, 2, 4, 2),
    Sketcher.Constraint("Vertical", 1, 2, 5, 2),
    Sketcher.Constraint("Diameter", 0, Q("11.9 mm")),
    Sketcher.Constraint("Angle", 1, Q("60 deg")),
    Sketcher.Constraint("DistanceY", -1, 1, 1, 2, Q("11 mm")),
    Sketcher.Constraint("DistanceY", -1, 1, 4, 2, Q("4.9 mm")),
    Sketcher.Constraint("DistanceX", 2, 1, 2, 2, Q("3.521837 mm")),
    Sketcher.Constraint("DistanceX", -1, 1, 3, 2, Q("17.291641 mm")),
    Sketcher.Constraint("DistanceX", 1, 2, 0, 3, Q("1.760918 mm")),
])
pad10 = body6.newObject("PartDesign::Pad", "Pad009")
pad10.Profile = sketch10
pad10.Length = 10

sketch11 = body6.newObject("Sketcher::SketchObject", "Sketch010")
sketch11.AttachmentSupport = (doc.getObject("XY_Plane005"), [""])
sketch11.MapMode = "FlatFace"
sketch11.addGeometry([
    Part.LineSegment(App.Vector(17.291641, 7.95, 0), App.Vector(15.530722, 11, 0)),
    Part.LineSegment(App.Vector(15.530722, 11, 0), App.Vector(12.008886, 11, 0)),
    Part.LineSegment(App.Vector(12.008886, 11, 0), App.Vector(10.247967, 7.95, 0)),
    Part.LineSegment(App.Vector(10.247967, 7.95, 0), App.Vector(12.008886, 4.9, 0)),
    Part.LineSegment(App.Vector(12.008886, 4.9, 0), App.Vector(15.530722, 4.9, 0)),
    Part.LineSegment(App.Vector(15.530722, 4.9, 0), App.Vector(17.291641, 7.95, 0)),
], False)
sketch11.addConstraint([
    Sketcher.Constraint("Coincident", 0, 2, 1, 1),
    Sketcher.Constraint("Coincident", 1, 2, 2, 1),
    Sketcher.Constraint("Coincident", 2, 2, 3, 1),
    Sketcher.Constraint("Coincident", 3, 2, 4, 1),
    Sketcher.Constraint("Coincident", 4, 2, 5, 1),
    Sketcher.Constraint("Coincident", 5, 2, 0, 1),
    Sketcher.Constraint("Horizontal", 1),
    Sketcher.Constraint("Horizontal", 4),
    Sketcher.Constraint("Parallel", 0, 3),
    Sketcher.Constraint("Parallel", 2, 5),
    Sketcher.Constraint("Horizontal", 2, 2, 5, 2),
    Sketcher.Constraint("Vertical", 1, 2, 3, 2),
    Sketcher.Constraint("Vertical", 0, 2, 4, 2),
    Sketcher.Constraint("Angle", 0, Q("120 deg")),
    Sketcher.Constraint("DistanceY", -1, 1, 0, 2, Q("11 mm")),
    Sketcher.Constraint("DistanceY", -1, 1, 3, 2, Q("4.9 mm")),
    Sketcher.Constraint("DistanceX", 1, 2, 1, 1, Q("3.521837 mm")),
    Sketcher.Constraint("DistanceX", -1, 1, 5, 2, Q("17.291641 mm")),
])
pad11 = body6.newObject("PartDesign::Pad", "Pad010")
pad11.Profile = sketch11
pad11.Length = 4
body7 = doc.addObject("PartDesign::Body", "Body006")

sketch12 = body7.newObject("Sketcher::SketchObject", "Sketch011")
sketch12.AttachmentSupport = (doc.getObject("XY_Plane006"), [""])
sketch12.MapMode = "FlatFace"
sketch12.addGeometry([
    Part.Circle(App.Vector(0, 15.9, 0), App.Vector(0, 0, 1), 5.95),
    Part.LineSegment(App.Vector(-3.521837, 15.9, 0), App.Vector(-1.760918, 18.95, 0)),
    Part.LineSegment(App.Vector(-1.760918, 18.95, 0), App.Vector(1.760918, 18.95, 0)),
    Part.LineSegment(App.Vector(1.760918, 18.95, 0), App.Vector(3.521837, 15.9, 0)),
    Part.LineSegment(App.Vector(3.521837, 15.9, 0), App.Vector(1.760918, 12.85, 0)),
    Part.LineSegment(App.Vector(1.760918, 12.85, 0), App.Vector(-1.760918, 12.85, 0)),
    Part.LineSegment(App.Vector(-1.760918, 12.85, 0), App.Vector(-3.521837, 15.9, 0)),
], False)
sketch12.addConstraint([
    Sketcher.Constraint("Coincident", 1, 2, 2, 1),
    Sketcher.Constraint("Coincident", 2, 2, 3, 1),
    Sketcher.Constraint("Coincident", 3, 2, 4, 1),
    Sketcher.Constraint("Coincident", 4, 2, 5, 1),
    Sketcher.Constraint("Coincident", 5, 2, 6, 1),
    Sketcher.Constraint("Coincident", 6, 2, 1, 1),
    Sketcher.Constraint("Horizontal", 2),
    Sketcher.Constraint("Horizontal", 5),
    Sketcher.Constraint("Symmetric", 3, 2, 6, 2, -2),
    Sketcher.Constraint("PointOnObject", 0, 3, -2),
    Sketcher.Constraint("Parallel", 1, 4),
    Sketcher.Constraint("Parallel", 3, 6),
    Sketcher.Constraint("Horizontal", 0, 3, 3, 2),
    Sketcher.Constraint("Vertical", 2, 2, 4, 2),
    Sketcher.Constraint("Vertical", 1, 2, 5, 2),
    Sketcher.Constraint("Diameter", 0, Q("11.9 mm")),
    Sketcher.Constraint("Angle", 1, Q("60 deg")),
    Sketcher.Constraint("DistanceY", -1, 1, 0, 3, Q("15.9 mm")),
    Sketcher.Constraint("DistanceY", 4, 2, 2, 2, Q("6.1 mm")),
    Sketcher.Constraint("DistanceX", 2, 1, 2, 2, Q("3.521837 mm")),
])
pad12 = body7.newObject("PartDesign::Pad", "Pad011")
pad12.Profile = sketch12
pad12.Length = 10

sketch13 = body7.newObject("Sketcher::SketchObject", "Sketch012")
sketch13.AttachmentSupport = (doc.getObject("XY_Plane006"), [""])
sketch13.MapMode = "FlatFace"
sketch13.addGeometry([
    Part.LineSegment(App.Vector(3.521837, 15.9, 0), App.Vector(1.760918, 18.95, 0)),
    Part.LineSegment(App.Vector(1.760918, 18.95, 0), App.Vector(-1.760918, 18.95, 0)),
    Part.LineSegment(App.Vector(-1.760918, 18.95, 0), App.Vector(-3.521837, 15.9, 0)),
    Part.LineSegment(App.Vector(-3.521837, 15.9, 0), App.Vector(-1.760918, 12.85, 0)),
    Part.LineSegment(App.Vector(-1.760918, 12.85, 0), App.Vector(1.760918, 12.85, 0)),
    Part.LineSegment(App.Vector(1.760918, 12.85, 0), App.Vector(3.521837, 15.9, 0)),
], False)
sketch13.addConstraint([
    Sketcher.Constraint("Coincident", 0, 2, 1, 1),
    Sketcher.Constraint("Coincident", 1, 2, 2, 1),
    Sketcher.Constraint("Coincident", 2, 2, 3, 1),
    Sketcher.Constraint("Coincident", 3, 2, 4, 1),
    Sketcher.Constraint("Coincident", 4, 2, 5, 1),
    Sketcher.Constraint("Coincident", 5, 2, 0, 1),
    Sketcher.Constraint("Horizontal", 1),
    Sketcher.Constraint("Horizontal", 4),
    Sketcher.Constraint("Symmetric", 2, 2, 5, 2, -2),
    Sketcher.Constraint("Parallel", 0, 3),
    Sketcher.Constraint("Parallel", 2, 5),
    Sketcher.Constraint("Vertical", 1, 2, 3, 2),
    Sketcher.Constraint("Vertical", 0, 2, 4, 2),
    Sketcher.Constraint("Angle", 0, Q("120 deg")),
    Sketcher.Constraint("DistanceY", -1, 1, 2, 2, Q("15.9 mm")),
    Sketcher.Constraint("DistanceY", 3, 2, 1, 2, Q("6.1 mm")),
    Sketcher.Constraint("DistanceX", 1, 2, 1, 1, Q("3.521837 mm")),
])
pad13 = body7.newObject("PartDesign::Pad", "Pad012")
pad13.Profile = sketch13
pad13.Length = 4
body8 = doc.addObject("PartDesign::Body", "Body007")

sketch14 = body8.newObject("Sketcher::SketchObject", "Sketch013")
sketch14.AttachmentSupport = (doc.getObject("XY_Plane007"), [""])
sketch14.MapMode = "FlatFace"
sketch14.addGeometry([
    Part.Circle(App.Vector(0, 0, 0), App.Vector(0, 0, 1), 5.95),
    Part.LineSegment(App.Vector(-3.521837, 0, 0), App.Vector(-1.760918, 3.05, 0)),
    Part.LineSegment(App.Vector(-1.760918, 3.05, 0), App.Vector(1.760918, 3.05, 0)),
    Part.LineSegment(App.Vector(1.760918, 3.05, 0), App.Vector(3.521837, 0, 0)),
    Part.LineSegment(App.Vector(3.521837, 0, 0), App.Vector(1.760918, -3.05, 0)),
    Part.LineSegment(App.Vector(1.760918, -3.05, 0), App.Vector(-1.760918, -3.05, 0)),
    Part.LineSegment(App.Vector(-1.760918, -3.05, 0), App.Vector(-3.521837, 0, 0)),
], False)
sketch14.addConstraint([
    Sketcher.Constraint("Coincident", 1, 2, 2, 1),
    Sketcher.Constraint("Coincident", 2, 2, 3, 1),
    Sketcher.Constraint("Coincident", 3, 2, 4, 1),
    Sketcher.Constraint("Coincident", 4, 2, 5, 1),
    Sketcher.Constraint("Coincident", 5, 2, 6, 1),
    Sketcher.Constraint("Coincident", 6, 2, 1, 1),
    Sketcher.Constraint("Horizontal", 2),
    Sketcher.Constraint("Horizontal", 5),
    Sketcher.Constraint("Coincident", 0, 3, -1, 1),
    Sketcher.Constraint("Symmetric", 1, 2, 4, 2, -1, 1),
    Sketcher.Constraint("Symmetric", 3, 2, 6, 2, -1, 1),
    Sketcher.Constraint("PointOnObject", 3, 2, -1),
    Sketcher.Constraint("Parallel", 3, 6),
    Sketcher.Constraint("Vertical", 2, 2, 4, 2),
    Sketcher.Constraint("Diameter", 0, Q("11.9 mm")),
    Sketcher.Constraint("Angle", 1, Q("60 deg")),
    Sketcher.Constraint("DistanceY", 4, 2, 2, 2, Q("6.1 mm")),
    Sketcher.Constraint("DistanceX", 2, 1, 2, 2, Q("3.521837 mm")),
])
pad14 = body8.newObject("PartDesign::Pad", "Pad013")
pad14.Profile = sketch14
pad14.Length = 10

sketch15 = body8.newObject("Sketcher::SketchObject", "Sketch014")
sketch15.AttachmentSupport = (doc.getObject("XY_Plane007"), [""])
sketch15.MapMode = "FlatFace"
sketch15.addGeometry([
    Part.LineSegment(App.Vector(3.521837, 0, 0), App.Vector(1.760918, 3.05, 0)),
    Part.LineSegment(App.Vector(1.760918, 3.05, 0), App.Vector(-1.760918, 3.05, 0)),
    Part.LineSegment(App.Vector(-1.760918, 3.05, 0), App.Vector(-3.521837, 0, 0)),
    Part.LineSegment(App.Vector(-3.521837, 0, 0), App.Vector(-1.760918, -3.05, 0)),
    Part.LineSegment(App.Vector(-1.760918, -3.05, 0), App.Vector(1.760918, -3.05, 0)),
    Part.LineSegment(App.Vector(1.760918, -3.05, 0), App.Vector(3.521837, 0, 0)),
], False)
sketch15.addConstraint([
    Sketcher.Constraint("Coincident", 0, 2, 1, 1),
    Sketcher.Constraint("Coincident", 1, 2, 2, 1),
    Sketcher.Constraint("Coincident", 2, 2, 3, 1),
    Sketcher.Constraint("Coincident", 3, 2, 4, 1),
    Sketcher.Constraint("Coincident", 4, 2, 5, 1),
    Sketcher.Constraint("Coincident", 5, 2, 0, 1),
    Sketcher.Constraint("Horizontal", 1),
    Sketcher.Constraint("Horizontal", 4),
    Sketcher.Constraint("Symmetric", 0, 2, 3, 2, -1, 1),
    Sketcher.Constraint("Symmetric", 2, 2, 5, 2, -1, 1),
    Sketcher.Constraint("PointOnObject", 2, 2, -1),
    Sketcher.Constraint("Parallel", 2, 5),
    Sketcher.Constraint("Vertical", 1, 2, 3, 2),
    Sketcher.Constraint("Angle", 0, Q("120 deg")),
    Sketcher.Constraint("DistanceY", 3, 2, 1, 2, Q("6.1 mm")),
    Sketcher.Constraint("DistanceX", 1, 2, 1, 1, Q("3.521837 mm")),
])
pad15 = body8.newObject("PartDesign::Pad", "Pad014")
pad15.Profile = sketch15
pad15.Length = 4

doc.recompute()
